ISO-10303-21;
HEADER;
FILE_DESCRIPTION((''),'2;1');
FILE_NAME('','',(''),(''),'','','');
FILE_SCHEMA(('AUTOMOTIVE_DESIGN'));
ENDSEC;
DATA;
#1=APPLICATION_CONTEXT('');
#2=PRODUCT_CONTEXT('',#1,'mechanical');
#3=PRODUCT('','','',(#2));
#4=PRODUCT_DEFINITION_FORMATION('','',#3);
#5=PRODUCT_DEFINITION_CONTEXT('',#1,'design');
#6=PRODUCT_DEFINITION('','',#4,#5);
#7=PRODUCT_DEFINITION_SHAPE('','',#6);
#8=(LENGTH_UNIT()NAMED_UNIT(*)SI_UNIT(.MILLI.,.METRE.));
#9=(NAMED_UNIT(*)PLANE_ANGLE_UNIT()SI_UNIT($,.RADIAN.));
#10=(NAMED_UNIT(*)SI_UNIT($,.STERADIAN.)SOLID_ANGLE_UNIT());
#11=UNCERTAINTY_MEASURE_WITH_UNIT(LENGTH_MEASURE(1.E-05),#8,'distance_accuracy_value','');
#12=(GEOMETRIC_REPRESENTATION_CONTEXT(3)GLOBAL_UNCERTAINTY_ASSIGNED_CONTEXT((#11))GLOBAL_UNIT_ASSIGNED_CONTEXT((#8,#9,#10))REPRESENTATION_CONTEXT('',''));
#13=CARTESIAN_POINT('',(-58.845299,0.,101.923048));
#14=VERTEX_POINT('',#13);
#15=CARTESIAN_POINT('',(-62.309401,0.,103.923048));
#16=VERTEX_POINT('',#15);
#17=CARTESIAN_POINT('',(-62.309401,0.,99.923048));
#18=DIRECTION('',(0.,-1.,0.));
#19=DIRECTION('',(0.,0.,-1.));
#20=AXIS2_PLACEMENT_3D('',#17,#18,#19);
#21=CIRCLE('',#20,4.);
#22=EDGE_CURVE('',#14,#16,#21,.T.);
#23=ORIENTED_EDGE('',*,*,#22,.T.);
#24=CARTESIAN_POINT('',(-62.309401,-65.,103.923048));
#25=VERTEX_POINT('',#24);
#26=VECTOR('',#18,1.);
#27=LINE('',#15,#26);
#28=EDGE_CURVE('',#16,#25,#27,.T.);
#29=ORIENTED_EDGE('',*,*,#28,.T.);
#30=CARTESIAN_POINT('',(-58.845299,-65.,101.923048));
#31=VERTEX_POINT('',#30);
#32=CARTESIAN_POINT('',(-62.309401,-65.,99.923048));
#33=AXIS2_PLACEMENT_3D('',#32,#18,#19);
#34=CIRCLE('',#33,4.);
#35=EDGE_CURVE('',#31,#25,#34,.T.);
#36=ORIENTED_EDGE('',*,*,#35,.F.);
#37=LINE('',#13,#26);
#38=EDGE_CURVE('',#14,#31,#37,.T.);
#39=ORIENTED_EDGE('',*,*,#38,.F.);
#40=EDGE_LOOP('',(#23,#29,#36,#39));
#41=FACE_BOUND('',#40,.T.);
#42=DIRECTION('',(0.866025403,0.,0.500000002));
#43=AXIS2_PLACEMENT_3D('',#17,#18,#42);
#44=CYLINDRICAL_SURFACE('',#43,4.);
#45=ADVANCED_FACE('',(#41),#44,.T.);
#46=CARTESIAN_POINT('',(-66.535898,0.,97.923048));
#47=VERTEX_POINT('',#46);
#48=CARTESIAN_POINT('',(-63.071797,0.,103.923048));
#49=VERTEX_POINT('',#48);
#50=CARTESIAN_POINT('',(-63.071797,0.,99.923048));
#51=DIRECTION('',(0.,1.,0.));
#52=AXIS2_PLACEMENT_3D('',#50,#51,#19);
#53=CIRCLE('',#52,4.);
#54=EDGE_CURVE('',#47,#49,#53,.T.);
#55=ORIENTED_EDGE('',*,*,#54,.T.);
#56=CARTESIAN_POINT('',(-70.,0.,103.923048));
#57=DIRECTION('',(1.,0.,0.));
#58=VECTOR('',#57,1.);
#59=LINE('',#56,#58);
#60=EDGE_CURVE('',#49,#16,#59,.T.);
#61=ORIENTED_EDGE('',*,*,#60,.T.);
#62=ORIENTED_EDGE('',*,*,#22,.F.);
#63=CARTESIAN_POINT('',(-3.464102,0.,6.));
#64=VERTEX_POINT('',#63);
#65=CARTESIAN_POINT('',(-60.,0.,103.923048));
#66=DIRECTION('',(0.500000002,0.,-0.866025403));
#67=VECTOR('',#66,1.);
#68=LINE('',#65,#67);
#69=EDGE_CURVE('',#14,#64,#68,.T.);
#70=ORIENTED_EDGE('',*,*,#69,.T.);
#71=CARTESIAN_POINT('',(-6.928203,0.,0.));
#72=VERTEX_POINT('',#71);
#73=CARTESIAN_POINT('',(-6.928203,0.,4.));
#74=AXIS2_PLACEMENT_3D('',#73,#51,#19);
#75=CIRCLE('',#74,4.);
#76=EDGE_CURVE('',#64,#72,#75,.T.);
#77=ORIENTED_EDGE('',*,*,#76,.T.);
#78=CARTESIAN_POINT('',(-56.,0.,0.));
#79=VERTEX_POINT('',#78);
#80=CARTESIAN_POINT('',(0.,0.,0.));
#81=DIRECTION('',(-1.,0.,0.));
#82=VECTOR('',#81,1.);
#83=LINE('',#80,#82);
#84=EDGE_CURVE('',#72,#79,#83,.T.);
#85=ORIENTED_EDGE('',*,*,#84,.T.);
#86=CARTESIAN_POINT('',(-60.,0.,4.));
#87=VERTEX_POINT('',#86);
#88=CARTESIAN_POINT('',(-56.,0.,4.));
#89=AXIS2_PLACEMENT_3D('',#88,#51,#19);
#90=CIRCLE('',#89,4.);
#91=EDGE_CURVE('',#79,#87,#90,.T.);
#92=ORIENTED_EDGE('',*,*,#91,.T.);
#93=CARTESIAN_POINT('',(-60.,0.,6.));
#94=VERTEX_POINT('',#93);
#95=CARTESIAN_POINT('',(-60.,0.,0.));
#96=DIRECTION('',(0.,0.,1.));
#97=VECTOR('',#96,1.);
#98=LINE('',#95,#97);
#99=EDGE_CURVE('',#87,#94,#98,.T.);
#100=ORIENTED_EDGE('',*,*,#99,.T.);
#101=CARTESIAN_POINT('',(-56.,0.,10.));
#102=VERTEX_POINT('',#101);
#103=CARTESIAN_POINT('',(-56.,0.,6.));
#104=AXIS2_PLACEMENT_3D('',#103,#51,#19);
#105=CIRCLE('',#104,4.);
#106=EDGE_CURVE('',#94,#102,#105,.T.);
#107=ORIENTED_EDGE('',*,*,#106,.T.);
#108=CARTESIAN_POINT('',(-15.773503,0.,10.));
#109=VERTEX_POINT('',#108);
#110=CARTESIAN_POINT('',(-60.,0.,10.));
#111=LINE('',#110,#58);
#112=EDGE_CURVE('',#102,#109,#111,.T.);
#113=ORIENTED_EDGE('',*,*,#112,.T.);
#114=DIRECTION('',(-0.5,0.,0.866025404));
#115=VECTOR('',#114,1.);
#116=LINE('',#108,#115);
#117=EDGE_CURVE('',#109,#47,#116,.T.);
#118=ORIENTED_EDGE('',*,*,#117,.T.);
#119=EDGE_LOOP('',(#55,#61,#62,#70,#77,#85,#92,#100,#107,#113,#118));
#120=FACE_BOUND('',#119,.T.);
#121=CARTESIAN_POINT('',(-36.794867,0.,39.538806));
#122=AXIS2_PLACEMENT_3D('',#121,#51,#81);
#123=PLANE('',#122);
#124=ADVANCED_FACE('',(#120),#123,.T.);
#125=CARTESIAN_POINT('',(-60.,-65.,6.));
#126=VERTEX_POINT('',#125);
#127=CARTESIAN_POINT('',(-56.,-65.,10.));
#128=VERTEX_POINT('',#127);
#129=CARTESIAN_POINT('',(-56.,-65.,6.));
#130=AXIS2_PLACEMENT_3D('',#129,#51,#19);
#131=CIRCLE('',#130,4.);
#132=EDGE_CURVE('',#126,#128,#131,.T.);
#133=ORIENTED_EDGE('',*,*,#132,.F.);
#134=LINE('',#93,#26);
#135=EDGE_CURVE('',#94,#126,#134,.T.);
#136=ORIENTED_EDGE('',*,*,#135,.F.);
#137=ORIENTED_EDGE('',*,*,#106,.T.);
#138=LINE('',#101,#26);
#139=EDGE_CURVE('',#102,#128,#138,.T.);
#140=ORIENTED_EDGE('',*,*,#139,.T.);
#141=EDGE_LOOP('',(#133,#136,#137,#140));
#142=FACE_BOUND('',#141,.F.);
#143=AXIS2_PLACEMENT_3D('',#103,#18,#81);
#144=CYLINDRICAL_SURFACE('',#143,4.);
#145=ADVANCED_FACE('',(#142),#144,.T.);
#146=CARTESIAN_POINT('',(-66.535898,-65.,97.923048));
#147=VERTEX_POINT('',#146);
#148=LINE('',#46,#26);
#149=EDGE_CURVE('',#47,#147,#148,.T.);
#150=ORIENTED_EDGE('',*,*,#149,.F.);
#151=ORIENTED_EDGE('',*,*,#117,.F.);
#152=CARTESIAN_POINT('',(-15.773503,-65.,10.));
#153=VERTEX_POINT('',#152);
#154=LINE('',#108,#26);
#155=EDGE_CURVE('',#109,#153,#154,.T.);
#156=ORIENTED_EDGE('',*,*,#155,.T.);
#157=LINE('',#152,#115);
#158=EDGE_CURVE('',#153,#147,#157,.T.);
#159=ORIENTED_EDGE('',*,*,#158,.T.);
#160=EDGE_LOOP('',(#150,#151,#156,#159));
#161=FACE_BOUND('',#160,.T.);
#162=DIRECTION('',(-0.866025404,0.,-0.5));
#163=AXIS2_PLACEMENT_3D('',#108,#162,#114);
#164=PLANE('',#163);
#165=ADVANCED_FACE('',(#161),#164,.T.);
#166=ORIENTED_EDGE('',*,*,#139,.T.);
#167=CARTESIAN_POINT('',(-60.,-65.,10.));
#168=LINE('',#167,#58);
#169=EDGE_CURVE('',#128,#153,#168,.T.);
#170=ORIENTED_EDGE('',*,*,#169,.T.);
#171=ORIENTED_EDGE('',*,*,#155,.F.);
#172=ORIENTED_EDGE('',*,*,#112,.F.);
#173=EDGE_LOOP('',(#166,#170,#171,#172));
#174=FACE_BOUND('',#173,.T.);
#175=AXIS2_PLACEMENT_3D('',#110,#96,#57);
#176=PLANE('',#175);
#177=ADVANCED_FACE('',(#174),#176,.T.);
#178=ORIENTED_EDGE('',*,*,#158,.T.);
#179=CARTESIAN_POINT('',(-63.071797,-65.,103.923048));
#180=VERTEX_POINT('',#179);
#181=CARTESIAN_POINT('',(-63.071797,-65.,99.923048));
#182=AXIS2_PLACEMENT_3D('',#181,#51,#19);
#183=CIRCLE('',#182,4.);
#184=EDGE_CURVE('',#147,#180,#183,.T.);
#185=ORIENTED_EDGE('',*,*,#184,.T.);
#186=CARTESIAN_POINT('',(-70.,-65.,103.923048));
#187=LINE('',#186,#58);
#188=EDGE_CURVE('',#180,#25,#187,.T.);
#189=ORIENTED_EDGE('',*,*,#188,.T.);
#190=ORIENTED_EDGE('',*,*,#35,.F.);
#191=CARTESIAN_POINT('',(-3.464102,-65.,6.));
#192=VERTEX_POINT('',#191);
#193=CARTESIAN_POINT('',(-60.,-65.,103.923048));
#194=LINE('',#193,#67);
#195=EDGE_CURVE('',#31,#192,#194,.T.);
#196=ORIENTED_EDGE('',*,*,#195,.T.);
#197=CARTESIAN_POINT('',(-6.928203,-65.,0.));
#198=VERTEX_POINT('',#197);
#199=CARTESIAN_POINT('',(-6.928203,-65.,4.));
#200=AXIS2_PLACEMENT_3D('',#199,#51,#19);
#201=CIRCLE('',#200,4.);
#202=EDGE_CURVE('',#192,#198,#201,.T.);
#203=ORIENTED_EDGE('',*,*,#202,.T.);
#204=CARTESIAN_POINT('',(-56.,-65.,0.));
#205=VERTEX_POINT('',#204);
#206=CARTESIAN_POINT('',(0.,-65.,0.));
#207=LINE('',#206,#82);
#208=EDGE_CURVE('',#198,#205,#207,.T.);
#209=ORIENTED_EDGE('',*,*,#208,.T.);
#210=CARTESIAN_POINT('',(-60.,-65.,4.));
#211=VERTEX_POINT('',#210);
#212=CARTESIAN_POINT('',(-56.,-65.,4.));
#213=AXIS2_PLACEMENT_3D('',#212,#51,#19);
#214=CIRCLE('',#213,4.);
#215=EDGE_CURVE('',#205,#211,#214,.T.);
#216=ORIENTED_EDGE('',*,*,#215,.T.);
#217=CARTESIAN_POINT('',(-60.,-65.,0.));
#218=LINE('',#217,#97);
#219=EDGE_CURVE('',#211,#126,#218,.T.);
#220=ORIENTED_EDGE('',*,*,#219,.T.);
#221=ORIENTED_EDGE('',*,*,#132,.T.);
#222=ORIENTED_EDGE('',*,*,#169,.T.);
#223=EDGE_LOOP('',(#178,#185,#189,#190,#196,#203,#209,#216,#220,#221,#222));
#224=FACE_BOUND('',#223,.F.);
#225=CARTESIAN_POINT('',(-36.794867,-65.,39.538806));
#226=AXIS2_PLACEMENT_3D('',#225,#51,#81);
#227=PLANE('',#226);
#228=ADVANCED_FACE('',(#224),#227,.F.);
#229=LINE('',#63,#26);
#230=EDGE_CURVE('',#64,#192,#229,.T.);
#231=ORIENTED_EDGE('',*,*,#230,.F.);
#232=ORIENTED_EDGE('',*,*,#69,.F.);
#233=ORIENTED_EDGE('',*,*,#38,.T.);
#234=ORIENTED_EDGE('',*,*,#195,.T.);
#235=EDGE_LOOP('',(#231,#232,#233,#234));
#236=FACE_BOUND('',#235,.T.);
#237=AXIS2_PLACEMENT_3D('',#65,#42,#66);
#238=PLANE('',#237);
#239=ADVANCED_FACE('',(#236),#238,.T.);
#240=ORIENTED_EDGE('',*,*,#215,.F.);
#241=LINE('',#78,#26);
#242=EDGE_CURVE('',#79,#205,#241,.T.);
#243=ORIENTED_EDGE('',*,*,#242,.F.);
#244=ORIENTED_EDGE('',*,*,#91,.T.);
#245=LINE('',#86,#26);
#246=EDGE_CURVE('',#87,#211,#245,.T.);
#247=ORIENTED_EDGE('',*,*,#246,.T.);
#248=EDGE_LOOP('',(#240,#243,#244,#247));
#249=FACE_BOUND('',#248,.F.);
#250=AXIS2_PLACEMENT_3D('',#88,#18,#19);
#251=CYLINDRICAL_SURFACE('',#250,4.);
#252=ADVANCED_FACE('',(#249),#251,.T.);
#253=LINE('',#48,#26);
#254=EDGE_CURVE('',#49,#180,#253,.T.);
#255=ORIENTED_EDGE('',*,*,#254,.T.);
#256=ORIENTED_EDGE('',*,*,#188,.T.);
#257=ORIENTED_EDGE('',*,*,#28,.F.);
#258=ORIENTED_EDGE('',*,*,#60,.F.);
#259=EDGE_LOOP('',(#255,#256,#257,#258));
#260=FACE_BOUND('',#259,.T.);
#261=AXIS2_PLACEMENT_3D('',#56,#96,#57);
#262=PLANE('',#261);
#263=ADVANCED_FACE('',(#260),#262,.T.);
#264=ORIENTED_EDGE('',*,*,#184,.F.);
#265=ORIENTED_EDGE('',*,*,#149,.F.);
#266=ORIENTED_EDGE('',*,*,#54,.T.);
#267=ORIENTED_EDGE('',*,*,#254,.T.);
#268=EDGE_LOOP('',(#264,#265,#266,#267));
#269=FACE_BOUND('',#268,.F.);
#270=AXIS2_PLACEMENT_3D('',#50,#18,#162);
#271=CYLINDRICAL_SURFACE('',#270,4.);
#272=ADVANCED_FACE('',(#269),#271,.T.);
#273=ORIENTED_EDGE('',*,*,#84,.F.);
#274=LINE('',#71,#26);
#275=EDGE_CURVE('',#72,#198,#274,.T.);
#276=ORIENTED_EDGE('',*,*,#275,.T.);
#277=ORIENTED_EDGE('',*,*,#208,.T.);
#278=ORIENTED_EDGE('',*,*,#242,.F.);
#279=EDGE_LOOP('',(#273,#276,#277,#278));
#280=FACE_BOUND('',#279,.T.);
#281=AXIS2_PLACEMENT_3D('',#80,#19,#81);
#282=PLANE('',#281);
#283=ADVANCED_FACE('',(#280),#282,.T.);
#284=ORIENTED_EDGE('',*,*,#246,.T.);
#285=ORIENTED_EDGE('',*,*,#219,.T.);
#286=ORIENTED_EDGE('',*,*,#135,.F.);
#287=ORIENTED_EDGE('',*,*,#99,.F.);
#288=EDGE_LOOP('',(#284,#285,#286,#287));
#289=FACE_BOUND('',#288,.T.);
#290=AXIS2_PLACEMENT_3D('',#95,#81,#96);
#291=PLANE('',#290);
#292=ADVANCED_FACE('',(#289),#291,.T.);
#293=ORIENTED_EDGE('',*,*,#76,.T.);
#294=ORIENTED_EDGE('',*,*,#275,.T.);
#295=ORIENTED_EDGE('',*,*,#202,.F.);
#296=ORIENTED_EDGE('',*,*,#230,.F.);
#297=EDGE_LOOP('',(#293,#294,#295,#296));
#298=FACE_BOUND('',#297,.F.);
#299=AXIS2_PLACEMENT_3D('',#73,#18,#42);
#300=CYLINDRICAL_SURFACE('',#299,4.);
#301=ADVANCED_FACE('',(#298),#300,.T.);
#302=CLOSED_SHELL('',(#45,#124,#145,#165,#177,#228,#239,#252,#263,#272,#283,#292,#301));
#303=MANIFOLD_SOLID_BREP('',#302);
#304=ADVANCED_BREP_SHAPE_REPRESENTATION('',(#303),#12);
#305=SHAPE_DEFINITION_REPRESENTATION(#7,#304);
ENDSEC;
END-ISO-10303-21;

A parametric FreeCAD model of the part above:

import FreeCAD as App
import Part
import Sketcher
Q = App.Units.Quantity


def edges_at(feature, points):
    """Names of the edges that pass closest to the given points."""
    edges = feature.Shape.Edges
    near = lambda p: min(range(len(edges)), key=lambda i: edges[i].distToShape(Part.Vertex(*p))[0])
    return sorted({f"Edge{near(p) + 1}" for p in points})

doc = App.newDocument("Part")
body = doc.addObject("PartDesign::Body", "Body")

# Sketch on XZ plane
sketch1 = doc.addObject("Sketcher::SketchObject", "Sketch")
body.addObject(sketch1)
sketch1.AttachmentSupport = (doc.XZ_Plane, [""])
sketch1.MapMode = "FlatFace"
sketch1.addGeometry([
    Part.LineSegment(App.Vector(0, 0, 0), App.Vector(-60, 104, 0)),  # 0
    Part.LineSegment(App.Vector(-60, 104, 0), App.Vector(-70, 104, 0)),  # 1
    Part.LineSegment(App.Vector(-70, 104, 0), App.Vector(-16, 10, 0)),  # 2
    Part.LineSegment(App.Vector(-16, 10, 0), App.Vector(-60, 10, 0)),  # 3
    Part.LineSegment(App.Vector(-60, 10, 0), App.Vector(-60, 0, 0)),  # 4
    Part.LineSegment(App.Vector(-60, 0, 0), App.Vector(0, 0, 0)),  # 5
], False)
sketch1.addConstraint([
    Sketcher.Constraint("Coincident", 0, 2, 1, 1),
    Sketcher.Constraint("Coincident", 1, 2, 2, 1),
    Sketcher.Constraint("Coincident", 2, 2, 3, 1),
    Sketcher.Constraint("Coincident", 3, 2, 4, 1),
    Sketcher.Constraint("Coincident", 4, 2, 5, 1),
    Sketcher.Constraint("Coincident", 5, 2, 0, 1),
    Sketcher.Constraint("Horizontal", 1),
    Sketcher.Constraint("Horizontal", 3),
    Sketcher.Constraint("Vertical", 4),
    Sketcher.Constraint("Horizontal", 5),
    Sketcher.Constraint("Coincident", 5, 2, -1, 1),
    Sketcher.Constraint("Parallel", 0, 2),
    Sketcher.Constraint("Vertical", 0, 2, 3, 2),
    Sketcher.Constraint("Equal", 1, 4),
    Sketcher.Constraint("DistanceX", 1, 2, 1, 1, 10.0),
    Sketcher.Constraint("DistanceX", 5, 1, 5, 2, 60.0),
    Sketcher.Constraint("Angle", 0, Q("120 deg")),
])
pad1 = doc.addObject("PartDesign::Pad", "Pad")
body.addObject(pad1)
pad1.Profile = sketch1
pad1.Length = 65
doc.recompute()

fillet = doc.addObject("PartDesign::Fillet", "Fillet")
body.addObject(fillet)
fillet.Base = (pad1, edges_at(pad1, [
    (0, -32.5, 0),
    (-60, -32.5, 0),
    (-60, -32.5, 10),
    (-70, -32.5, 103.923),
    (-60, -32.5, 103.923),
]))
fillet.Radius = 4

doc.recompute()
